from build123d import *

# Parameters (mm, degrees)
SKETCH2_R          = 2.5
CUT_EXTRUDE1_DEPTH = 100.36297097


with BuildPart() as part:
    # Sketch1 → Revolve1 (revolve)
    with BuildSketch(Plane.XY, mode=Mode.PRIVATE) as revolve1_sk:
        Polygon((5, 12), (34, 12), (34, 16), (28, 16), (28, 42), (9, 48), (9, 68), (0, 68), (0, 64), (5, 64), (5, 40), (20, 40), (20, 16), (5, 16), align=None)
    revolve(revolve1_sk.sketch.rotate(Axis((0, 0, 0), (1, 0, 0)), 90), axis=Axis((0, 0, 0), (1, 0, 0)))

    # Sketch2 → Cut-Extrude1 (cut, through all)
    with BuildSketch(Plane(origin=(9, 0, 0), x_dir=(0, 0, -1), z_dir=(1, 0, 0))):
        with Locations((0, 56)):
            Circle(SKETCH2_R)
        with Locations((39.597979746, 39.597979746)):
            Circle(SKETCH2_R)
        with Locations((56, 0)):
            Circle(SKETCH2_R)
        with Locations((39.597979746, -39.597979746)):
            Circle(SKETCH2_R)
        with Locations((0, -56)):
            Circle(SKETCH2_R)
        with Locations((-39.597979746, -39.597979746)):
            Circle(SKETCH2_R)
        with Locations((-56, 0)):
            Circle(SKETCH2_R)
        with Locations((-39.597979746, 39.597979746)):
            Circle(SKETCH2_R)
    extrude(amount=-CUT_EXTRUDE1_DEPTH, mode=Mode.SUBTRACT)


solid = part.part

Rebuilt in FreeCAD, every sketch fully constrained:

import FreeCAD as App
import Part
import Sketcher

V = App.Vector
Q = App.Units.Quantity

doc = App.newDocument("Part")
body = doc.addObject("PartDesign::Body", "Body")

sketch1 = body.newObject("Sketcher::SketchObject", "Sketch")
sketch1.AttachmentSupport = (doc.getObject("XY_Plane"), [""])
sketch1.MapMode = "FlatFace"
sketch1.addGeometry([
    Part.LineSegment(V(5, 12, 0), V(34, 12, 0)),
    Part.LineSegment(V(34, 12, 0), V(34, 16, 0)),
    Part.LineSegment(V(34, 16, 0), V(28, 16, 0)),
    Part.LineSegment(V(28, 16, 0), V(28, 42, 0)),
    Part.LineSegment(V(28, 42, 0), V(9, 48, 0)),
    Part.LineSegment(V(9, 48, 0), V(9, 68, 0)),
    Part.LineSegment(V(9, 68, 0), V(0, 68, 0)),
    Part.LineSegment(V(0, 68, 0), V(0, 64, 0)),
    Part.LineSegment(V(0, 64, 0), V(5, 64, 0)),
    Part.LineSegment(V(5, 64, 0), V(5, 40, 0)),
    Part.LineSegment(V(5, 40, 0), V(20, 40, 0)),
    Part.LineSegment(V(20, 40, 0), V(20, 16, 0)),
    Part.LineSegment(V(20, 16, 0), V(5, 16, 0)),
    Part.LineSegment(V(5, 16, 0), V(5, 12, 0)),
], False)
sketch1.addConstraint([
    Sketcher.Constraint("Coincident", 0, 2, 1, 1),
    Sketcher.Constraint("Coincident", 1, 2, 2, 1),
    Sketcher.Constraint("Coincident", 2, 2, 3, 1),
    Sketcher.Constraint("Coincident", 3, 2, 4, 1),
    Sketcher.Constraint("Coincident", 4, 2, 5, 1),
    Sketcher.Constraint("Coincident", 5, 2, 6, 1),
    Sketcher.Constraint("Coincident", 6, 2, 7, 1),
    Sketcher.Constraint("Coincident", 7, 2, 8, 1),
    Sketcher.Constraint("Coincident", 8, 2, 9, 1),
    Sketcher.Constraint("Coincident", 9, 2, 10, 1),
    Sketcher.Constraint("Coincident", 10, 2, 11, 1),
    Sketcher.Constraint("Coincident", 11, 2, 12, 1),
    Sketcher.Constraint("Coincident", 12, 2, 13, 1),
    Sketcher.Constraint("Coincident", 13, 2, 0, 1),
    Sketcher.Constraint("Horizontal", 0),
    Sketcher.Constraint("Vertical", 1),
    Sketcher.Constraint("Horizontal", 2),
    Sketcher.Constraint("Vertical", 3),
    Sketcher.Constraint("Vertical", 5),
    Sketcher.Constraint("Horizontal", 6),
    Sketcher.Constraint("Vertical", 7),
    Sketcher.Constraint("Horizontal", 8),
    Sketcher.Constraint("Vertical", 9),
    Sketcher.Constraint("Horizontal", 10),
    Sketcher.Constraint("Vertical", 11),
    Sketcher.Constraint("Horizontal", 12),
    Sketcher.Constraint("Vertical", 13),
    Sketcher.Constraint("PointOnObject", 6, 2, -2),
    Sketcher.Constraint("Horizontal", 2, 2, 11, 2),
    Sketcher.Constraint("Vertical", 9, 2, 12, 2),
    Sketcher.Constraint("Equal", 1, 7),
    Sketcher.Constraint("Equal", 9, 11),
    Sketcher.Constraint("DistanceX", 0, 1, 0, 2, Q("29 mm")),
    Sketcher.Constraint("DistanceX", 2, 2, 2, 1, Q("6 mm")),
    Sketcher.Constraint("DistanceX", 6, 2, 6, 1, Q("9 mm")),
    Sketcher.Constraint("DistanceX", 8, 1, 8, 2, Q("5 mm")),
    Sketcher.Constraint("DistanceX", 10, 1, 10, 2, Q("15 mm")),
    Sketcher.Constraint("DistanceY", 1, 1, 1, 2, Q("4 mm")),
    Sketcher.Constraint("DistanceY", 3, 1, 3, 2, Q("26 mm")),
    Sketcher.Constraint("DistanceY", 5, 1, 5, 2, Q("20 mm")),
    Sketcher.Constraint("DistanceY", 9, 2, 9, 1, Q("24 mm")),
    Sketcher.Constraint("DistanceY", -1, 1, 0, 2, Q("12 mm")),
])
revolution = body.newObject("PartDesign::Revolution", "Revolution")
revolution.Profile = sketch1
revolution.ReferenceAxis = (sketch1, ["H_Axis"])
revolution.Angle = 360

sketch2 = body.newObject("Sketcher::SketchObject", "Sketch001")
sketch2.AttachmentSupport = (doc.getObject("YZ_Plane"), [""])
sketch2.MapMode = "FlatFace"
sketch2.AttachmentOffset = App.Placement(V(0, 0, 9), App.Rotation())
sketch2.addGeometry([
    Part.Circle(V(56, 0, 0), V(0, 0, 1), 2.5),
    Part.Circle(V(39.6, -39.6, 0), V(0, 0, 1), 2.5),
    Part.Circle(V(0, -56, 0), V(0, 0, 1), 2.5),
    Part.Circle(V(-39.6, -39.6, 0), V(0, 0, 1), 2.5),
    Part.Circle(V(-56, 0, 0), V(0, 0, 1), 2.5),
    Part.Circle(V(-39.6, 39.6, 0), V(0, 0, 1), 2.5),
    Part.Circle(V(0, 56, 0), V(0, 0, 1), 2.5),
    Part.Circle(V(39.6, 39.6, 0), V(0, 0, 1), 2.5),
], False)
sketch2.addConstraint([
    Sketcher.Constraint("Equal", 0, 1),
    Sketcher.Constraint("Equal", 1, 2),
    Sketcher.Constraint("Equal", 2, 3),
    Sketcher.Constraint("Equal", 3, 4),
    Sketcher.Constraint("Equal", 4, 5),
    Sketcher.Constraint("Equal", 5, 6),
    Sketcher.Constraint("Equal", 6, 7),
    Sketcher.Constraint("Symmetric", 0, 3, 4, 3, -1, 1),
    Sketcher.Constraint("Symmetric", 1, 3, 5, 3, -1, 1),
    Sketcher.Constraint("Symmetric", 2, 3, 6, 3, -1, 1),
    Sketcher.Constraint("Symmetric", 3, 3, 7, 3, -1, 1),
    Sketcher.Constraint("Symmetric", 1, 3, 3, 3, -2),
    Sketcher.Constraint("PointOnObject", 0, 3, -1),
    Sketcher.Constraint("PointOnObject", 2, 3, -2),
    Sketcher.Constraint("Diameter", 0, Q("5 mm")),
    Sketcher.Constraint("DistanceX", -1, 1, 0, 3, Q("56 mm")),
    Sketcher.Constraint("DistanceY", 2, 3, -1, 1, Q("56 mm")),
    Sketcher.Constraint("DistanceX", -1, 1, 1, 3, Q("39.59798 mm")),
    Sketcher.Constraint("DistanceY", 1, 3, -1, 1, Q("39.59798 mm")),
])
pocket1 = body.newObject("PartDesign::Pocket", "Pocket")
pocket1.Profile = sketch2
pocket1.Type = "ThroughAll"

doc.recompute()
